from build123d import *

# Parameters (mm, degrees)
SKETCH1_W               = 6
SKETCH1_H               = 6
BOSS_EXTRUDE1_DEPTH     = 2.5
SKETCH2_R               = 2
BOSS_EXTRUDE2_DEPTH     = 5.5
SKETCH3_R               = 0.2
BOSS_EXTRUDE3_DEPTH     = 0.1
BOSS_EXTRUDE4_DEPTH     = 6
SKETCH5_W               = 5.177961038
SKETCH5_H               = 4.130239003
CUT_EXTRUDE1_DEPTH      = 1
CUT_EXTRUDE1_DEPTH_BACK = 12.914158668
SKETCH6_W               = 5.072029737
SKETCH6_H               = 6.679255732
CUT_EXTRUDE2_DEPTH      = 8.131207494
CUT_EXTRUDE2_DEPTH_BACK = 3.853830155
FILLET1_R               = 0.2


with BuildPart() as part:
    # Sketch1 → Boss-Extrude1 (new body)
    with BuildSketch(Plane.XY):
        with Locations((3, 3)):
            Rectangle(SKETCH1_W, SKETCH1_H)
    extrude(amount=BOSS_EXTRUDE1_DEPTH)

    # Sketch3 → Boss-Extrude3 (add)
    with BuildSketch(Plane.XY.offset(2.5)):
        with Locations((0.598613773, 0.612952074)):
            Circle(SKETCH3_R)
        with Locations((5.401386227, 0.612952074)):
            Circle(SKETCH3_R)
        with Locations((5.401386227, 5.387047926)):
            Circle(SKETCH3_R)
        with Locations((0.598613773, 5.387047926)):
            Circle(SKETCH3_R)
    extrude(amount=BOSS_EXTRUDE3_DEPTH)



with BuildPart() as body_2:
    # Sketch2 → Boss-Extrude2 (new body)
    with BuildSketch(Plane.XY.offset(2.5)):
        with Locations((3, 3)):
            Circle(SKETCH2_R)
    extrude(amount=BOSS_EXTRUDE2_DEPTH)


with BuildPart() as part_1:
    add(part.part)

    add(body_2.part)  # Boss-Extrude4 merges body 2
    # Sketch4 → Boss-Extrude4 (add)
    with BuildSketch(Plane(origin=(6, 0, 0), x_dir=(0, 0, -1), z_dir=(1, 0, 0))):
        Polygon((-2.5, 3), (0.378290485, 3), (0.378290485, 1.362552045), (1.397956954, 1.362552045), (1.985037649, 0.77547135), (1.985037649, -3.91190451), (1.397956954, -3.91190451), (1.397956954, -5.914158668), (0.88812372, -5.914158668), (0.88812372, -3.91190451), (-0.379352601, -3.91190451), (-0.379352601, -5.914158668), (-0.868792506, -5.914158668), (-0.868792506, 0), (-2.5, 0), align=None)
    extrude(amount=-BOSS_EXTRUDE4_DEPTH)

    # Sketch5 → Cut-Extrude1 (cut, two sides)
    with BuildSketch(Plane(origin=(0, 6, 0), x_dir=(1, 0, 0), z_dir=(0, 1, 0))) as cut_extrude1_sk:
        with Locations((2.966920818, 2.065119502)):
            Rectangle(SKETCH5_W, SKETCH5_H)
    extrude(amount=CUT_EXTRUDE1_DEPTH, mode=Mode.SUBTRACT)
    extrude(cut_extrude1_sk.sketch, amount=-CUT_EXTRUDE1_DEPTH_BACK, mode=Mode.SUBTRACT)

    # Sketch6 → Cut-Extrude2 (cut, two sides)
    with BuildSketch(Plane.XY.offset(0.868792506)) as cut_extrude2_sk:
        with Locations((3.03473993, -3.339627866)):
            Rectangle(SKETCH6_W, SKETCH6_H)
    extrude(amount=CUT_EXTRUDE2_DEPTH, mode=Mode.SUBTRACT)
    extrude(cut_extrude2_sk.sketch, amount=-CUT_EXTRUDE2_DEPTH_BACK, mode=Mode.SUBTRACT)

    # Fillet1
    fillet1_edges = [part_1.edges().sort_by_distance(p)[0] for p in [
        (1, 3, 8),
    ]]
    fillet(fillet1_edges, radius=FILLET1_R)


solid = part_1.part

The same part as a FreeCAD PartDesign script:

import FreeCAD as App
import Part
import Sketcher
from FreeCAD import Vector
Q = App.Units.Quantity


def edges_at(feature, points):
    """Names of the edges that pass closest to the given points."""
    edges = feature.Shape.Edges
    near = lambda p: min(range(len(edges)), key=lambda i: edges[i].distToShape(Part.Vertex(*p))[0])
    return sorted({f"Edge{near(p) + 1}" for p in points})

doc = App.newDocument("Part")
body = doc.addObject("PartDesign::Body", "Body")

# Sketch on XY plane
sketch1 = body.newObject("Sketcher::SketchObject", "Sketch")
sketch1.AttachmentSupport = (doc.getObject("XY_Plane"), [""])
sketch1.MapMode = "FlatFace"
sketch1.addGeometry(Part.LineSegment(Vector(0, 6, 0), Vector(0, 0, 0)), False)
sketch1.addGeometry(Part.LineSegment(Vector(0, 0, 0), Vector(6, 0, 0)), False)
sketch1.addGeometry(Part.LineSegment(Vector(6, 0, 0), Vector(6, 6, 0)), False)
sketch1.addGeometry(Part.LineSegment(Vector(6, 6, 0), Vector(0, 6, 0)), False)
sketch1.addConstraint(Sketcher.Constraint("Coincident", 0, 2, 1, 1))
sketch1.addConstraint(Sketcher.Constraint("Coincident", 1, 2, 2, 1))
sketch1.addConstraint(Sketcher.Constraint("Coincident", 2, 2, 3, 1))
sketch1.addConstraint(Sketcher.Constraint("Coincident", 3, 2, 0, 1))
sketch1.addConstraint(Sketcher.Constraint("Vertical", 0))
sketch1.addConstraint(Sketcher.Constraint("Horizontal", 1))
sketch1.addConstraint(Sketcher.Constraint("Vertical", 2))
sketch1.addConstraint(Sketcher.Constraint("Horizontal", 3))
sketch1.addConstraint(Sketcher.Constraint("Coincident", 0, 2, -1, 1))
sketch1.addConstraint(Sketcher.Constraint("Equal", 3, 0))
sketch1.addConstraint(Sketcher.Constraint("DistanceX", 1, 1, 1, 2, 6.0))
pad1 = body.newObject("PartDesign::Pad", "Pad")
pad1.Profile = sketch1
pad1.Length = 2.5

# Sketch on XY plane
sketch2 = body.newObject("Sketcher::SketchObject", "Sketch001")
sketch2.AttachmentSupport = (doc.getObject("XY_Plane"), [""])
sketch2.MapMode = "FlatFace"
sketch2.AttachmentOffset = App.Placement(Vector(0, 0, 2.5), App.Rotation())
sketch2.addGeometry(Part.Circle(Vector(0.598614, 0.612952, 0), Vector(0, 0, 1), 0.2), False)
sketch2.addGeometry(Part.Circle(Vector(5.401386, 0.612952, 0), Vector(0, 0, 1), 0.2), False)
sketch2.addGeometry(Part.Circle(Vector(5.401386, 5.387048, 0), Vector(0, 0, 1), 0.2), False)
sketch2.addGeometry(Part.Circle(Vector(0.598614, 5.387048, 0), Vector(0, 0, 1), 0.2), False)
sketch2.addConstraint(Sketcher.Constraint("Equal", 0, 1))
sketch2.addConstraint(Sketcher.Constraint("Equal", 1, 2))
sketch2.addConstraint(Sketcher.Constraint("Equal", 2, 3))
sketch2.addConstraint(Sketcher.Constraint("Horizontal", 0, 3, 1, 3))
sketch2.addConstraint(Sketcher.Constraint("Horizontal", 2, 3, 3, 3))
sketch2.addConstraint(Sketcher.Constraint("Vertical", 1, 3, 2, 3))
sketch2.addConstraint(Sketcher.Constraint("Vertical", 0, 3, 3, 3))
sketch2.addConstraint(Sketcher.Constraint("Diameter", 0, 0.4))
sketch2.addConstraint(Sketcher.Constraint("DistanceX", -1, 1, 0, 3, 0.598614))
sketch2.addConstraint(Sketcher.Constraint("DistanceY", -1, 1, 0, 3, 0.612952))
sketch2.addConstraint(Sketcher.Constraint("DistanceX", -1, 1, 1, 3, 5.401386))
sketch2.addConstraint(Sketcher.Constraint("DistanceY", -1, 1, 2, 3, 5.387048))
pad2 = body.newObject("PartDesign::Pad", "Pad001")
pad2.Profile = sketch2
pad2.Length = 0.1
body2 = doc.addObject("PartDesign::Body", "Body001")

# Sketch on XY plane
sketch3 = body2.newObject("Sketcher::SketchObject", "Sketch002")
sketch3.AttachmentSupport = (doc.getObject("XY_Plane001"), [""])
sketch3.MapMode = "FlatFace"
sketch3.AttachmentOffset = App.Placement(Vector(0, 0, 2.5), App.Rotation())
sketch3.addGeometry(Part.Circle(Vector(3, 3, 0), Vector(0, 0, 1), 2), False)
sketch3.addConstraint(Sketcher.Constraint("Diameter", 0, 4.0))
sketch3.addConstraint(Sketcher.Constraint("DistanceX", -1, 1, 0, 3, 3.0))
sketch3.addConstraint(Sketcher.Constraint("DistanceY", -1, 1, 0, 3, 3.0))
pad3 = body2.newObject("PartDesign::Pad", "Pad002")
pad3.Profile = sketch3
pad3.Length = 5.5
doc.recompute()

boolean = body.newObject("PartDesign::Boolean", "Boolean")
boolean.Type = "Fuse"
boolean.addObjects([body2])

# Sketch on YZ plane
sketch4 = body.newObject("Sketcher::SketchObject", "Sketch003")
sketch4.AttachmentSupport = (doc.getObject("YZ_Plane"), [""])
sketch4.MapMode = "FlatFace"
sketch4.AttachmentOffset = App.Placement(Vector(0, 0, 6), App.Rotation())
sketch4.addGeometry(Part.LineSegment(Vector(3, -0.37829, 0), Vector(3, 2.5, 0)), False)
sketch4.addGeometry(Part.LineSegment(Vector(3, 2.5, 0), Vector(0, 2.5, 0)), False)
sketch4.addGeometry(Part.LineSegment(Vector(0, 2.5, 0), Vector(0, 0.868793, 0)), False)
sketch4.addGeometry(Part.LineSegment(Vector(0, 0.868793, 0), Vector(-5.914159, 0.868793, 0)), False)
sketch4.addGeometry(Part.LineSegment(Vector(-5.914159, 0.868793, 0), Vector(-5.914159, 0.379353, 0)), False)
sketch4.addGeometry(Part.LineSegment(Vector(-5.914159, 0.379353, 0), Vector(-3.911905, 0.379353, 0)), False)
sketch4.addGeometry(Part.LineSegment(Vector(-3.911905, 0.379353, 0), Vector(-3.911905, -0.888124, 0)), False)
sketch4.addGeometry(Part.LineSegment(Vector(-3.911905, -0.888124, 0), Vector(-5.914159, -0.888124, 0)), False)
sketch4.addGeometry(Part.LineSegment(Vector(-5.914159, -0.888124, 0), Vector(-5.914159, -1.397957, 0)), False)
sketch4.addGeometry(Part.LineSegment(Vector(-5.914159, -1.397957, 0), Vector(-3.911905, -1.397957, 0)), False)
sketch4.addGeometry(Part.LineSegment(Vector(-3.911905, -1.397957, 0), Vector(-3.911905, -1.985038, 0)), False)
sketch4.addGeometry(Part.LineSegment(Vector(-3.911905, -1.985038, 0), Vector(0.775471, -1.985038, 0)), False)
sketch4.addGeometry(Part.LineSegment(Vector(0.775471, -1.985038, 0), Vector(1.362552, -1.397957, 0)), False)
sketch4.addGeometry(Part.LineSegment(Vector(1.362552, -1.397957, 0), Vector(1.362552, -0.37829, 0)), False)
sketch4.addGeometry(Part.LineSegment(Vector(1.362552, -0.37829, 0), Vector(3, -0.37829, 0)), False)
sketch4.addConstraint(Sketcher.Constraint("Coincident", 0, 2, 1, 1))
sketch4.addConstraint(Sketcher.Constraint("Coincident", 1, 2, 2, 1))
sketch4.addConstraint(Sketcher.Constraint("Coincident", 2, 2, 3, 1))
sketch4.addConstraint(Sketcher.Constraint("Coincident", 3, 2, 4, 1))
sketch4.addConstraint(Sketcher.Constraint("Coincident", 4, 2, 5, 1))
sketch4.addConstraint(Sketcher.Constraint("Coincident", 5, 2, 6, 1))
sketch4.addConstraint(Sketcher.Constraint("Coincident", 6, 2, 7, 1))
sketch4.addConstraint(Sketcher.Constraint("Coincident", 7, 2, 8, 1))
sketch4.addConstraint(Sketcher.Constraint("Coincident", 8, 2, 9, 1))
sketch4.addConstraint(Sketcher.Constraint("Coincident", 9, 2, 10, 1))
sketch4.addConstraint(Sketcher.Constraint("Coincident", 10, 2, 11, 1))
sketch4.addConstraint(Sketcher.Constraint("Coincident", 11, 2, 12, 1))
sketch4.addConstraint(Sketcher.Constraint("Coincident", 12, 2, 13, 1))
sketch4.addConstraint(Sketcher.Constraint("Coincident", 13, 2, 14, 1))
sketch4.addConstraint(Sketcher.Constraint("Coincident", 14, 2, 0, 1))
sketch4.addConstraint(Sketcher.Constraint("Vertical", 0))
sketch4.addConstraint(Sketcher.Constraint("Horizontal", 1))
sketch4.addConstraint(Sketcher.Constraint("Vertical", 2))
sketch4.addConstraint(Sketcher.Constraint("Horizontal", 3))
sketch4.addConstraint(Sketcher.Constraint("Vertical", 4))
sketch4.addConstraint(Sketcher.Constraint("Horizontal", 5))
sketch4.addConstraint(Sketcher.Constraint("Vertical", 6))
sketch4.addConstraint(Sketcher.Constraint("Horizontal", 7))
sketch4.addConstraint(Sketcher.Constraint("Vertical", 8))
sketch4.addConstraint(Sketcher.Constraint("Horizontal", 9))
sketch4.addConstraint(Sketcher.Constraint("Vertical", 10))
sketch4.addConstraint(Sketcher.Constraint("Horizontal", 11))
sketch4.addConstraint(Sketcher.Constraint("Vertical", 13))
sketch4.addConstraint(Sketcher.Constraint("Horizontal", 14))
sketch4.addConstraint(Sketcher.Constraint("PointOnObject", 1, 2, -2))
sketch4.addConstraint(Sketcher.Constraint("Horizontal", 9, 2, 12, 2))
sketch4.addConstraint(Sketcher.Constraint("Vertical", 4, 2, 7, 2))
sketch4.addConstraint(Sketcher.Constraint("Vertical", 6, 2, 9, 2))
sketch4.addConstraint(Sketcher.Constraint("DistanceX", 1, 2, 1, 1, 3.0))
sketch4.addConstraint(Sketcher.Constraint("Angle", 12, Q("45 deg")))
sketch4.addConstraint(Sketcher.Constraint("DistanceY", -1, 1, 0, 2, 2.5))
sketch4.addConstraint(Sketcher.Constraint("DistanceX", 3, 2, 3, 1, 5.914159))
sketch4.addConstraint(Sketcher.Constraint("DistanceY", 0, 1, 0, 2, 2.87829))
sketch4.addConstraint(Sketcher.Constraint("DistanceY", 4, 2, 4, 1, 0.48944))
sketch4.addConstraint(Sketcher.Constraint("DistanceY", 10, 2, 10, 1, 0.587081))
sketch4.addConstraint(Sketcher.Constraint("DistanceX", 5, 1, 5, 2, 2.002254))
sketch4.addConstraint(Sketcher.Constraint("DistanceX", 11, 1, 11, 2, 4.687376))
sketch4.addConstraint(Sketcher.Constraint("DistanceY", 2, 2, 2, 1, 1.631207))
sketch4.addConstraint(Sketcher.Constraint("DistanceY", 6, 2, 6, 1, 1.267476))
sketch4.addConstraint(Sketcher.Constraint("DistanceY", 8, 2, 8, 1, 0.509833))
pad4 = body.newObject("PartDesign::Pad", "Pad003")
pad4.Profile = sketch4
pad4.Length = 6
pad4.Reversed = True

# Sketch on XZ plane
sketch5 = body.newObject("Sketcher::SketchObject", "Sketch004")
sketch5.AttachmentSupport = (doc.getObject("XZ_Plane"), [""])
sketch5.MapMode = "FlatFace"
sketch5.AttachmentOffset = App.Placement(Vector(0, 0, -6), App.Rotation())
sketch5.addGeometry(Part.LineSegment(Vector(0.37794, -4.130239, 0), Vector(0.37794, 0, 0)), False)
sketch5.addGeometry(Part.LineSegment(Vector(0.37794, 0, 0), Vector(5.555901, 0, 0)), False)
sketch5.addGeometry(Part.LineSegment(Vector(5.555901, 0, 0), Vector(5.555901, -4.130239, 0)), False)
sketch5.addGeometry(Part.LineSegment(Vector(5.555901, -4.130239, 0), Vector(0.37794, -4.130239, 0)), False)
sketch5.addConstraint(Sketcher.Constraint("Coincident", 0, 2, 1, 1))
sketch5.addConstraint(Sketcher.Constraint("Coincident", 1, 2, 2, 1))
sketch5.addConstraint(Sketcher.Constraint("Coincident", 2, 2, 3, 1))
sketch5.addConstraint(Sketcher.Constraint("Coincident", 3, 2, 0, 1))
sketch5.addConstraint(Sketcher.Constraint("Vertical", 0))
sketch5.addConstraint(Sketcher.Constraint("Horizontal", 1))
sketch5.addConstraint(Sketcher.Constraint("Vertical", 2))
sketch5.addConstraint(Sketcher.Constraint("Horizontal", 3))
sketch5.addConstraint(Sketcher.Constraint("PointOnObject", 0, 2, -1))
sketch5.addConstraint(Sketcher.Constraint("DistanceX", 1, 1, 1, 2, 5.177961))
sketch5.addConstraint(Sketcher.Constraint("DistanceY", 0, 1, 0, 2, 4.130239))
sketch5.addConstraint(Sketcher.Constraint("DistanceX", -1, 1, 1, 2, 5.555901))
pocket1 = body.newObject("PartDesign::Pocket", "Pocket")
pocket1.Profile = sketch5
pocket1.Type = "ThroughAll"
pocket1.Midplane = True

# Sketch on XY plane
sketch6 = body.newObject("Sketcher::SketchObject", "Sketch005")
sketch6.AttachmentSupport = (doc.getObject("XY_Plane"), [""])
sketch6.MapMode = "FlatFace"
sketch6.AttachmentOffset = App.Placement(Vector(0, 0, 0.868793), App.Rotation())
sketch6.addGeometry(Part.LineSegment(Vector(0.498725, 0, 0), Vector(0.498725, -6.679256, 0)), False)
sketch6.addGeometry(Part.LineSegment(Vector(0.498725, -6.679256, 0), Vector(5.570755, -6.679256, 0)), False)
sketch6.addGeometry(Part.LineSegment(Vector(5.570755, -6.679256, 0), Vector(5.570755, 0, 0)), False)
sketch6.addGeometry(Part.LineSegment(Vector(5.570755, 0, 0), Vector(0.498725, 0, 0)), False)
sketch6.addConstraint(Sketcher.Constraint("Coincident", 0, 2, 1, 1))
sketch6.addConstraint(Sketcher.Constraint("Coincident", 1, 2, 2, 1))
sketch6.addConstraint(Sketcher.Constraint("Coincident", 2, 2, 3, 1))
sketch6.addConstraint(Sketcher.Constraint("Coincident", 3, 2, 0, 1))
sketch6.addConstraint(Sketcher.Constraint("Vertical", 0))
sketch6.addConstraint(Sketcher.Constraint("Horizontal", 1))
sketch6.addConstraint(Sketcher.Constraint("Vertical", 2))
sketch6.addConstraint(Sketcher.Constraint("Horizontal", 3))
sketch6.addConstraint(Sketcher.Constraint("PointOnObject", 2, 2, -1))
sketch6.addConstraint(Sketcher.Constraint("DistanceX", 1, 1, 1, 2, 5.07203))
sketch6.addConstraint(Sketcher.Constraint("DistanceY", 0, 2, 0, 1, 6.679256))
sketch6.addConstraint(Sketcher.Constraint("DistanceX", -1, 1, 0, 2, 0.498725))
pocket2 = body.newObject("PartDesign::Pocket", "Pocket001")
pocket2.Profile = sketch6
pocket2.Type = "ThroughAll"
pocket2.Midplane = True
doc.recompute()

fillet = body.newObject("PartDesign::Fillet", "Fillet")
fillet.Base = (pocket2, edges_at(pocket2, [(1, 3, 8)]))
fillet.Radius = 0.2

doc.recompute()
